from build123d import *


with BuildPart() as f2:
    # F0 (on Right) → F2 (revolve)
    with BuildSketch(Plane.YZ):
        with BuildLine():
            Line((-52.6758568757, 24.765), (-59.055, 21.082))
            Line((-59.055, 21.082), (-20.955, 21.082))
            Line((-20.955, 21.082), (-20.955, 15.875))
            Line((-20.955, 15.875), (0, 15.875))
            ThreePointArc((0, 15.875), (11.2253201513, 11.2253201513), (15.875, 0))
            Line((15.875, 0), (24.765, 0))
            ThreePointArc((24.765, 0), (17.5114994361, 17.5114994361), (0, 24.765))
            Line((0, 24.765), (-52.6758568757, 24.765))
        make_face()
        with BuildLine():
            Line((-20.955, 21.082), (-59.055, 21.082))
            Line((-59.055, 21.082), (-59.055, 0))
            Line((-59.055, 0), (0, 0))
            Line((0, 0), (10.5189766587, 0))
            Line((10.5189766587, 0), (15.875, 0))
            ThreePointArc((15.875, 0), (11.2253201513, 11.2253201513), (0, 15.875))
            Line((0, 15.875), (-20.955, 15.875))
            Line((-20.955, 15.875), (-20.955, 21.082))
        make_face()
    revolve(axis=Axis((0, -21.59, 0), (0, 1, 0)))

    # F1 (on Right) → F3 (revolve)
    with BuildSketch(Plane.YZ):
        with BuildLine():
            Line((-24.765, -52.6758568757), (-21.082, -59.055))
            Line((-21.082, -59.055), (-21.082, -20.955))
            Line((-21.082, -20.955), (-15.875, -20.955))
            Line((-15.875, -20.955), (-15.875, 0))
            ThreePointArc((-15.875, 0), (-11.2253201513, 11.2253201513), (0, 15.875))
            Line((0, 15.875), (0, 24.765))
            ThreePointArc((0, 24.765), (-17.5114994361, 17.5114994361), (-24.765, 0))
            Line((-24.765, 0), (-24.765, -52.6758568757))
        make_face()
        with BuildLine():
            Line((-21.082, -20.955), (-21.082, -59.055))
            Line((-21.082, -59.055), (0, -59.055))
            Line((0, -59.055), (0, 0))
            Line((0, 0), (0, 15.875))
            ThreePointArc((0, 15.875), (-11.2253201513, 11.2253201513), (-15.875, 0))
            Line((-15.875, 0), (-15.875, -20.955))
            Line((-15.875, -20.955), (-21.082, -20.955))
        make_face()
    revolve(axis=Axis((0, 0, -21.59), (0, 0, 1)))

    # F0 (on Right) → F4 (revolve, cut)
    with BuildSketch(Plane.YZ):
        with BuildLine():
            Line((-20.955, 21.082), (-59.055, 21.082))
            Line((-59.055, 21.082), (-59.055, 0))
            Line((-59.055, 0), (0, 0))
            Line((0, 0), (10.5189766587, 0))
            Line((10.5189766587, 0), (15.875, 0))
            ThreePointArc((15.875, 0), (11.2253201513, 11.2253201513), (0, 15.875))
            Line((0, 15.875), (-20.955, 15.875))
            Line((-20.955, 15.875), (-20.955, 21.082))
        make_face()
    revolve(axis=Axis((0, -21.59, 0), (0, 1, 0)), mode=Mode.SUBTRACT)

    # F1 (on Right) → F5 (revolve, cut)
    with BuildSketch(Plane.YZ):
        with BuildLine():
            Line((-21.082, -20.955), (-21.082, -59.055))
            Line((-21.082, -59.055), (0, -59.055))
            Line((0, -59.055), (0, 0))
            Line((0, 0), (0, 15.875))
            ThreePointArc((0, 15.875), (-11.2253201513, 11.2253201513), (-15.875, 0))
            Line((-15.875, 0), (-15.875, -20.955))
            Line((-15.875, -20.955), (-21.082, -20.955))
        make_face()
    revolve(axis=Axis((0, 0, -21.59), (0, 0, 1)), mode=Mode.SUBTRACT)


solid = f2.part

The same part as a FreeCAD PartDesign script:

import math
import FreeCAD as App
import Part
import Sketcher
from FreeCAD import Vector
Q = App.Units.Quantity

doc = App.newDocument("Part")
body = doc.addObject("PartDesign::Body", "Body")

sketch1 = body.newObject("Sketcher::SketchObject", "Sketch")
sketch1.AttachmentSupport = (doc.getObject("YZ_Plane"), [""])
sketch1.MapMode = "FlatFace"
sketch1.addGeometry(Part.LineSegment(Vector(-52.675857, 24.765, 0), Vector(-59.055, 21.082, 0)), False)
sketch1.addGeometry(Part.LineSegment(Vector(-59.055, 21.082, 0), Vector(-59.055, 0, 0)), False)
sketch1.addGeometry(Part.LineSegment(Vector(-59.055, 0, 0), Vector(24.765, 0, 0)), False)
sketch1.addGeometry(Part.ArcOfCircle(Part.Circle(Vector(0, 0, 0), Vector(0, 0, 1), 24.765), math.radians(0), math.radians(90)), False)
sketch1.addGeometry(Part.LineSegment(Vector(0, 24.765, 0), Vector(-52.675857, 24.765, 0)), False)
sketch1.addConstraint(Sketcher.Constraint("Coincident", 0, 2, 1, 1))
sketch1.addConstraint(Sketcher.Constraint("Coincident", 1, 2, 2, 1))
sketch1.addConstraint(Sketcher.Constraint("Coincident", 2, 2, 3, 1))
sketch1.addConstraint(Sketcher.Constraint("Tangent", 3, 2, 4, 1))
sketch1.addConstraint(Sketcher.Constraint("Coincident", 4, 2, 0, 1))
sketch1.addConstraint(Sketcher.Constraint("Vertical", 1))
sketch1.addConstraint(Sketcher.Constraint("Horizontal", 2))
sketch1.addConstraint(Sketcher.Constraint("Horizontal", 4))
sketch1.addConstraint(Sketcher.Constraint("Coincident", 3, 3, -1, 1))
sketch1.addConstraint(Sketcher.Constraint("PointOnObject", 1, 2, -1))
sketch1.addConstraint(Sketcher.Constraint("DistanceX", 2, 1, 2, 2, Q("3.3 in")))
sketch1.addConstraint(Sketcher.Constraint("Angle", 0, Q("-150 deg")))
sketch1.addConstraint(Sketcher.Constraint("Radius", 3, Q("0.975 in")))
sketch1.addConstraint(Sketcher.Constraint("DistanceY", 1, 2, 1, 1, Q("0.83 in")))
revolution = body.newObject("PartDesign::Revolution", "Revolution")
revolution.Profile = sketch1
revolution.ReferenceAxis = (sketch1, ["H_Axis"])
revolution.Angle = 360

sketch2 = body.newObject("Sketcher::SketchObject", "Sketch001")
sketch2.AttachmentSupport = (doc.getObject("YZ_Plane"), [""])
sketch2.MapMode = "FlatFace"
sketch2.addGeometry(Part.LineSegment(Vector(-24.765, -52.675857, 0), Vector(-21.082, -59.055, 0)), False)
sketch2.addGeometry(Part.LineSegment(Vector(-21.082, -59.055, 0), Vector(0, -59.055, 0)), False)
sketch2.addGeometry(Part.LineSegment(Vector(0, -59.055, 0), Vector(0, 24.765, 0)), False)
sketch2.addGeometry(Part.ArcOfCircle(Part.Circle(Vector(0, 0, 0), Vector(0, 0, 1), 24.765), math.radians(90), math.radians(180)), False)
sketch2.addGeometry(Part.LineSegment(Vector(-24.765, 0, 0), Vector(-24.765, -52.675857, 0)), False)
sketch2.addConstraint(Sketcher.Constraint("Coincident", 0, 2, 1, 1))
sketch2.addConstraint(Sketcher.Constraint("Coincident", 1, 2, 2, 1))
sketch2.addConstraint(Sketcher.Constraint("Coincident", 2, 2, 3, 1))
sketch2.addConstraint(Sketcher.Constraint("Tangent", 3, 2, 4, 1))
sketch2.addConstraint(Sketcher.Constraint("Coincident", 4, 2, 0, 1))
sketch2.addConstraint(Sketcher.Constraint("Horizontal", 1))
sketch2.addConstraint(Sketcher.Constraint("Vertical", 2))
sketch2.addConstraint(Sketcher.Constraint("Vertical", 4))
sketch2.addConstraint(Sketcher.Constraint("Coincident", 3, 3, -1, 1))
sketch2.addConstraint(Sketcher.Constraint("PointOnObject", 1, 2, -2))
sketch2.addConstraint(Sketcher.Constraint("DistanceY", 2, 1, 2, 2, Q("3.3 in")))
sketch2.addConstraint(Sketcher.Constraint("Angle", 0, Q("-60 deg")))
sketch2.addConstraint(Sketcher.Constraint("Radius", 3, Q("0.975 in")))
sketch2.addConstraint(Sketcher.Constraint("DistanceX", 1, 1, 1, 2, Q("0.83 in")))
revolution2 = body.newObject("PartDesign::Revolution", "Revolution001")
revolution2.Profile = sketch2
revolution2.ReferenceAxis = (sketch2, ["V_Axis"])
revolution2.Angle = 360

sketch3 = body.newObject("Sketcher::SketchObject", "Sketch002")
sketch3.AttachmentSupport = (doc.getObject("YZ_Plane"), [""])
sketch3.MapMode = "FlatFace"
sketch3.addGeometry(Part.LineSegment(Vector(-20.955, 21.082, 0), Vector(-59.055, 21.082, 0)), False)
sketch3.addGeometry(Part.LineSegment(Vector(-59.055, 21.082, 0), Vector(-59.055, 0, 0)), False)
sketch3.addGeometry(Part.LineSegment(Vector(-59.055, 0, 0), Vector(15.875, 0, 0)), False)
sketch3.addGeometry(Part.ArcOfCircle(Part.Circle(Vector(0, 0, 0), Vector(0, 0, 1), 15.875), math.radians(0), math.radians(90)), False)
sketch3.addGeometry(Part.LineSegment(Vector(0, 15.875, 0), Vector(-20.955, 15.875, 0)), False)
sketch3.addGeometry(Part.LineSegment(Vector(-20.955, 15.875, 0), Vector(-20.955, 21.082, 0)), False)
sketch3.addConstraint(Sketcher.Constraint("Coincident", 0, 2, 1, 1))
sketch3.addConstraint(Sketcher.Constraint("Coincident", 1, 2, 2, 1))
sketch3.addConstraint(Sketcher.Constraint("Coincident", 2, 2, 3, 1))
sketch3.addConstraint(Sketcher.Constraint("Tangent", 3, 2, 4, 1))
sketch3.addConstraint(Sketcher.Constraint("Coincident", 4, 2, 5, 1))
sketch3.addConstraint(Sketcher.Constraint("Coincident", 5, 2, 0, 1))
sketch3.addConstraint(Sketcher.Constraint("Horizontal", 0))
sketch3.addConstraint(Sketcher.Constraint("Vertical", 1))
sketch3.addConstraint(Sketcher.Constraint("Horizontal", 2))
sketch3.addConstraint(Sketcher.Constraint("Horizontal", 4))
sketch3.addConstraint(Sketcher.Constraint("Vertical", 5))
sketch3.addConstraint(Sketcher.Constraint("Coincident", 3, 3, -1, 1))
sketch3.addConstraint(Sketcher.Constraint("PointOnObject", 1, 2, -1))
sketch3.addConstraint(Sketcher.Constraint("DistanceX", 0, 2, 0, 1, Q("1.5 in")))
sketch3.addConstraint(Sketcher.Constraint("Radius", 3, Q("0.625 in")))
sketch3.addConstraint(Sketcher.Constraint("DistanceX", 2, 1, 2, 2, Q("2.95 in")))
sketch3.addConstraint(Sketcher.Constraint("DistanceY", 1, 2, 1, 1, Q("0.83 in")))
groove = body.newObject("PartDesign::Groove", "Groove")
groove.Profile = sketch3
groove.ReferenceAxis = (sketch3, ["H_Axis"])
groove.Angle = 360

sketch4 = body.newObject("Sketcher::SketchObject", "Sketch003")
sketch4.AttachmentSupport = (doc.getObject("YZ_Plane"), [""])
sketch4.MapMode = "FlatFace"
sketch4.addGeometry(Part.LineSegment(Vector(-21.082, -20.955, 0), Vector(-21.082, -59.055, 0)), False)
sketch4.addGeometry(Part.LineSegment(Vector(-21.082, -59.055, 0), Vector(0, -59.055, 0)), False)
sketch4.addGeometry(Part.LineSegment(Vector(0, -59.055, 0), Vector(0, 15.875, 0)), False)
sketch4.addGeometry(Part.ArcOfCircle(Part.Circle(Vector(0, 0, 0), Vector(0, 0, 1), 15.875), math.radians(90), math.radians(180)), False)
sketch4.addGeometry(Part.LineSegment(Vector(-15.875, 0, 0), Vector(-15.875, -20.955, 0)), False)
sketch4.addGeometry(Part.LineSegment(Vector(-15.875, -20.955, 0), Vector(-21.082, -20.955, 0)), False)
sketch4.addConstraint(Sketcher.Constraint("Coincident", 0, 2, 1, 1))
sketch4.addConstraint(Sketcher.Constraint("Coincident", 1, 2, 2, 1))
sketch4.addConstraint(Sketcher.Constraint("Coincident", 2, 2, 3, 1))
sketch4.addConstraint(Sketcher.Constraint("Tangent", 3, 2, 4, 1))
sketch4.addConstraint(Sketcher.Constraint("Coincident", 4, 2, 5, 1))
sketch4.addConstraint(Sketcher.Constraint("Coincident", 5, 2, 0, 1))
sketch4.addConstraint(Sketcher.Constraint("Vertical", 0))
sketch4.addConstraint(Sketcher.Constraint("Horizontal", 1))
sketch4.addConstraint(Sketcher.Constraint("Vertical", 2))
sketch4.addConstraint(Sketcher.Constraint("Vertical", 4))
sketch4.addConstraint(Sketcher.Constraint("Horizontal", 5))
sketch4.addConstraint(Sketcher.Constraint("Coincident", 3, 3, -1, 1))
sketch4.addConstraint(Sketcher.Constraint("PointOnObject", 1, 2, -2))
sketch4.addConstraint(Sketcher.Constraint("DistanceY", 0, 2, 0, 1, Q("1.5 in")))
sketch4.addConstraint(Sketcher.Constraint("Radius", 3, Q("0.625 in")))
sketch4.addConstraint(Sketcher.Constraint("DistanceX", 1, 1, 1, 2, Q("0.83 in")))
sketch4.addConstraint(Sketcher.Constraint("DistanceY", 2, 1, 2, 2, Q("2.95 in")))
groove2 = body.newObject("PartDesign::Groove", "Groove001")
groove2.Profile = sketch4
groove2.ReferenceAxis = (sketch4, ["V_Axis"])
groove2.Angle = 360

doc.recompute()
